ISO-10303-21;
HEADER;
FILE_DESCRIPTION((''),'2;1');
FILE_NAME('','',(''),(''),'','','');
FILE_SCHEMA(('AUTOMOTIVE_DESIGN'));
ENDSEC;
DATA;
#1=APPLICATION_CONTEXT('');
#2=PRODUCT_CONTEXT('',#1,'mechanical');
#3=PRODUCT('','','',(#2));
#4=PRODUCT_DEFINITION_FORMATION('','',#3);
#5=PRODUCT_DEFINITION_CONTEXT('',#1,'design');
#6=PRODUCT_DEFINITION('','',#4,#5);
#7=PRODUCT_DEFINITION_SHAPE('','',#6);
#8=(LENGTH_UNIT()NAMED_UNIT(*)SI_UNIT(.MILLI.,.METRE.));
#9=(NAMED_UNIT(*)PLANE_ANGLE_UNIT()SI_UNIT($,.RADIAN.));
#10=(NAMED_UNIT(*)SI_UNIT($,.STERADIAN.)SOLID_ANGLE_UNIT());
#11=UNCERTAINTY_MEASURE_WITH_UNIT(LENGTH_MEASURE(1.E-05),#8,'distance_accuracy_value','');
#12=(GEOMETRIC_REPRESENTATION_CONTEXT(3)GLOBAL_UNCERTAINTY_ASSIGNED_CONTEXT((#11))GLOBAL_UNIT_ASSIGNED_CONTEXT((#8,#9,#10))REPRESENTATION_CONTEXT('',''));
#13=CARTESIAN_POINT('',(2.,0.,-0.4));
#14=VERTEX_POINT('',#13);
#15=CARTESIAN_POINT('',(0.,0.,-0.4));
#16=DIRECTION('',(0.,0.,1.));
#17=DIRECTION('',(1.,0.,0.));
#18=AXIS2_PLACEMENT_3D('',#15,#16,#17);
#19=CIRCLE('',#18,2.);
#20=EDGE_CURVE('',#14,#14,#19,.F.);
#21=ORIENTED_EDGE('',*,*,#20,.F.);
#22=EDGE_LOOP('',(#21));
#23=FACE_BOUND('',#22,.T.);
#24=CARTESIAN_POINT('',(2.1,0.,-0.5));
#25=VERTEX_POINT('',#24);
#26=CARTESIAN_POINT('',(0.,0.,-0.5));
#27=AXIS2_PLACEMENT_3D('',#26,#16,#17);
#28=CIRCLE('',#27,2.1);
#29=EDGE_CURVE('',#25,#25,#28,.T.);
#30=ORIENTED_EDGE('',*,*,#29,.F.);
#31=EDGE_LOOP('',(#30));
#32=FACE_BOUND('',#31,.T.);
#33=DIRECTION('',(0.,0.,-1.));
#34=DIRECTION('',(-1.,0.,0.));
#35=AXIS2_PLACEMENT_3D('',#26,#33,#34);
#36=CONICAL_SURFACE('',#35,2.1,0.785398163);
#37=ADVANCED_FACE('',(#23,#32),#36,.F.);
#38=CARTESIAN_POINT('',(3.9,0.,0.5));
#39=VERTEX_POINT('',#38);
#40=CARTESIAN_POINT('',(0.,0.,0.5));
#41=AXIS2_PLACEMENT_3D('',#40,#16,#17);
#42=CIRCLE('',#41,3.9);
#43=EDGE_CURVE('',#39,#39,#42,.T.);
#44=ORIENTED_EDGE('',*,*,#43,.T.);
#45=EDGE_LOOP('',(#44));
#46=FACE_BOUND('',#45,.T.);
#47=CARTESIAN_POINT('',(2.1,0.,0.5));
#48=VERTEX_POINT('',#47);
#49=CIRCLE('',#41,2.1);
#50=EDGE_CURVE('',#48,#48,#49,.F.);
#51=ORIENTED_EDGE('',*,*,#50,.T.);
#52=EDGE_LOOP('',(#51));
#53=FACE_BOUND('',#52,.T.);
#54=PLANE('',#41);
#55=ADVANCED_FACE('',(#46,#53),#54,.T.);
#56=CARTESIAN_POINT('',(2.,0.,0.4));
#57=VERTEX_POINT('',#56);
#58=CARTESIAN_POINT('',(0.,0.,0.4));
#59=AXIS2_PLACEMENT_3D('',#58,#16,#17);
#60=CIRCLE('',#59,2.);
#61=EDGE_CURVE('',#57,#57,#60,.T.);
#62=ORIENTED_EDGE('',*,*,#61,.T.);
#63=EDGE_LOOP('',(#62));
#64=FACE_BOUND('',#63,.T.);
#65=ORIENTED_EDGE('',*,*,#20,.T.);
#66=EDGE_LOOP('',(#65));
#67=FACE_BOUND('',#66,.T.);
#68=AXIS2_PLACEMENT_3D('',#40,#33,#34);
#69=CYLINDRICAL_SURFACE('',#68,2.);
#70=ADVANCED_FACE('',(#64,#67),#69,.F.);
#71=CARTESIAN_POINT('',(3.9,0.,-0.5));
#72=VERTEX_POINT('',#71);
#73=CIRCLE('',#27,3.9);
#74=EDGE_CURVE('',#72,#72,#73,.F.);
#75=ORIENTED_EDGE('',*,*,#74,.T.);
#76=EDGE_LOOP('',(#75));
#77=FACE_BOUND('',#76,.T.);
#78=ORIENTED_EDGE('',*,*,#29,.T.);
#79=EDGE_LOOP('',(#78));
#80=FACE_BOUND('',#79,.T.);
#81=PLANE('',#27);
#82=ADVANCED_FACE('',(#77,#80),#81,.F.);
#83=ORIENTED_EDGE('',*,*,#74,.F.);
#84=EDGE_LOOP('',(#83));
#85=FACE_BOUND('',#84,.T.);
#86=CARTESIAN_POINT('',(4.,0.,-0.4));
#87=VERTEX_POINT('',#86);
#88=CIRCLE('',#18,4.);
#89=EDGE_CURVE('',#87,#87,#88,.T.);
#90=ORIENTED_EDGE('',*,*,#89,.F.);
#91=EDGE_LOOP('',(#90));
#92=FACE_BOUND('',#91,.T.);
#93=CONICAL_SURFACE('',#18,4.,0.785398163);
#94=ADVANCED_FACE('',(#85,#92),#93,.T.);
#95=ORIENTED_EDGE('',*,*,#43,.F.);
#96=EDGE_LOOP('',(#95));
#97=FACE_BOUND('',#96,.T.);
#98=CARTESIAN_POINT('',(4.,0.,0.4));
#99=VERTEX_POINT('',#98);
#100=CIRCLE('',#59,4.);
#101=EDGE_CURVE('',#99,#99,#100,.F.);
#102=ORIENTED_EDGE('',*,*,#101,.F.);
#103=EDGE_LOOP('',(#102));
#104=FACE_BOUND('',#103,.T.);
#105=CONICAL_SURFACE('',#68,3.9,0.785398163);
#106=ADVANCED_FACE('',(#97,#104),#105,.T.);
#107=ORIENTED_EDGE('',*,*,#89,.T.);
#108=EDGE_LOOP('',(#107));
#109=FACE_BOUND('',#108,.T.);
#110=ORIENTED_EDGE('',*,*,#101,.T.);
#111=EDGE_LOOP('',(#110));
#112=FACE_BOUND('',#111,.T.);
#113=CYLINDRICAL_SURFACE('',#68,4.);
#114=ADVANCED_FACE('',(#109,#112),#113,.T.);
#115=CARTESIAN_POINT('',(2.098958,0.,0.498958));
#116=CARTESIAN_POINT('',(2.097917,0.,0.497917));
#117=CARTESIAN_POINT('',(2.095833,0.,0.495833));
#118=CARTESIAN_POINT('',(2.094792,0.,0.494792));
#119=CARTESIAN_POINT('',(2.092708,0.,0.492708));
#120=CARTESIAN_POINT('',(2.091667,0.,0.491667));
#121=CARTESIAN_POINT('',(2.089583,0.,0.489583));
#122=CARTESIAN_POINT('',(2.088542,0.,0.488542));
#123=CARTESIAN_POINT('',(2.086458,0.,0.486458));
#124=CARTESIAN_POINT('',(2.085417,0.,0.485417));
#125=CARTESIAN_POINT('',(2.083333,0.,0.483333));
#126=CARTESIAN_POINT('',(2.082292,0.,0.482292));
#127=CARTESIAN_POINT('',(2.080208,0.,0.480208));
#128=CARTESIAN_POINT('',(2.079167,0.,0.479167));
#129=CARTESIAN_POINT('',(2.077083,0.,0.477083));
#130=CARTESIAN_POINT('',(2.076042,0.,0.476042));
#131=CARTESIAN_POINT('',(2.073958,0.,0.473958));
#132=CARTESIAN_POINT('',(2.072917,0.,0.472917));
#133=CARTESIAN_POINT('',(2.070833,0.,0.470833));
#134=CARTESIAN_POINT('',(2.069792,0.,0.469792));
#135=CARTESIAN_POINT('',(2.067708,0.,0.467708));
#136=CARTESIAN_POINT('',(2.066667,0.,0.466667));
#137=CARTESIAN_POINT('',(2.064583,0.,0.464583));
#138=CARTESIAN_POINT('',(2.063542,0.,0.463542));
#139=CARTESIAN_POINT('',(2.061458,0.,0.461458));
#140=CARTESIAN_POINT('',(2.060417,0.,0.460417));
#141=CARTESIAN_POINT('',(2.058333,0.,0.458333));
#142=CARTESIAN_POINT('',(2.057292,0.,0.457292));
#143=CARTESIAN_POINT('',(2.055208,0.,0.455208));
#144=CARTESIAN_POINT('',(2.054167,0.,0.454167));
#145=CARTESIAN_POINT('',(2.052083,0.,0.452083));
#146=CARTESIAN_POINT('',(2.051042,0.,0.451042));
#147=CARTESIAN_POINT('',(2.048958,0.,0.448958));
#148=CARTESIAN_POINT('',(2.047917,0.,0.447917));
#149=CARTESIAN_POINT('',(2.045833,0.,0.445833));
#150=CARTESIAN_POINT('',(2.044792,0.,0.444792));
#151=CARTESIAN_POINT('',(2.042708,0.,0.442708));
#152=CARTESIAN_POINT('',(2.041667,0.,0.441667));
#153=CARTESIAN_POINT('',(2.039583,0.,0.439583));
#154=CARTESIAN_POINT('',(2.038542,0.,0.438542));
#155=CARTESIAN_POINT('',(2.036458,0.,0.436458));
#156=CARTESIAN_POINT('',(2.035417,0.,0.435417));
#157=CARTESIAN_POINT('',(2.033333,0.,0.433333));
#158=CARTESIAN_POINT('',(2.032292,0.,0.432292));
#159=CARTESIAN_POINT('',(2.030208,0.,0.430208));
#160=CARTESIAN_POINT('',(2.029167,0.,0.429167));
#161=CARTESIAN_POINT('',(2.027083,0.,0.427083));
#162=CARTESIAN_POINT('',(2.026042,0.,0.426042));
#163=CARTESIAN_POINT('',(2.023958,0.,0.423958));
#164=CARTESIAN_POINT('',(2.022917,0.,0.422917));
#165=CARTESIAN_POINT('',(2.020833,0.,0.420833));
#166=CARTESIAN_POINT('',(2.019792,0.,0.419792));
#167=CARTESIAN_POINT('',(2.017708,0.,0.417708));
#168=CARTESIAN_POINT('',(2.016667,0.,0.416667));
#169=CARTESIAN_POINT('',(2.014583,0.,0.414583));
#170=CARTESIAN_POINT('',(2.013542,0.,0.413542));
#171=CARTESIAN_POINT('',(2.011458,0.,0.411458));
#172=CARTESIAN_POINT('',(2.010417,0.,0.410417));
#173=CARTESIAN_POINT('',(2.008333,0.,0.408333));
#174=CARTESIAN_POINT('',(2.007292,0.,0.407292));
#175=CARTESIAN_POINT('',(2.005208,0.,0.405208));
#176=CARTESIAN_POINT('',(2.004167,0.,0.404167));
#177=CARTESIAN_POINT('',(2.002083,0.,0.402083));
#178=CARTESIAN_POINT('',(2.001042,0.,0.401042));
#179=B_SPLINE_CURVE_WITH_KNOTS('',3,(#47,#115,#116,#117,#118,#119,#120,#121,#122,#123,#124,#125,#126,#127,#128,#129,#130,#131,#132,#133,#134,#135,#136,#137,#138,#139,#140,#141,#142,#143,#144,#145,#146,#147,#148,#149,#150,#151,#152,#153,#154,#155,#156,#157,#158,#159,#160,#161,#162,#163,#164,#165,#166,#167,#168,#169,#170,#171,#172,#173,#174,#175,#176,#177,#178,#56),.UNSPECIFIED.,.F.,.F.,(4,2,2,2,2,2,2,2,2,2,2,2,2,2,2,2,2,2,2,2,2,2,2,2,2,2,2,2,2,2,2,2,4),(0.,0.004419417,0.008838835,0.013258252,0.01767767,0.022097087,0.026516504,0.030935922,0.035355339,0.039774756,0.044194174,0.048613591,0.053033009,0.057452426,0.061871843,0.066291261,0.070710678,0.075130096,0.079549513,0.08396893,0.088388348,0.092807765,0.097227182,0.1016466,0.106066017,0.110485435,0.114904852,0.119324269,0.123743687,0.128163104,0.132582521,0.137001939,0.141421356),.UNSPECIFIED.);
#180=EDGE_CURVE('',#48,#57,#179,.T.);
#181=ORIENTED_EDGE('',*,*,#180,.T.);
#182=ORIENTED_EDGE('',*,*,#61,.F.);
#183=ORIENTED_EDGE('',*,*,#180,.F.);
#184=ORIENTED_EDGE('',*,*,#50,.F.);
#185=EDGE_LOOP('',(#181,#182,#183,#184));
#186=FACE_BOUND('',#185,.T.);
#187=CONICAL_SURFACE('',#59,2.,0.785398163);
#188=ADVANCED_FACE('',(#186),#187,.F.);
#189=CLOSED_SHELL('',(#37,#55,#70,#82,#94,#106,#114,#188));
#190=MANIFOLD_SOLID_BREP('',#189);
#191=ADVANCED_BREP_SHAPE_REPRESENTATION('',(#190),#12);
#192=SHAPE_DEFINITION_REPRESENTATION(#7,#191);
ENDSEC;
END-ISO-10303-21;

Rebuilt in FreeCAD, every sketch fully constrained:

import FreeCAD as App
import Part
import Sketcher

V = App.Vector


def edges_at(feature, points):
    """Names of the edges that pass closest to the given points."""
    edges = feature.Shape.Edges
    near = lambda p: min(range(len(edges)), key=lambda i: edges[i].distToShape(Part.Vertex(*p))[0])
    return sorted({f"Edge{near(p) + 1}" for p in points})

doc = App.newDocument("Part")
params = doc.addObject("Spreadsheet::Sheet", "Params")
for row, (alias, value) in enumerate([
    ("sketch1_diameter", "8 mm"),
    ("sketch1_diameter2", "4 mm"),
    ("pad1_length", "1 mm"),
    ("chamfer_size", "0.1 mm"),
], start=1):
    params.set(f"A{row}", alias)
    params.set(f"B{row}", "=" + value)
    params.setAlias(f"B{row}", alias)

body = doc.addObject("PartDesign::Body", "Body")

# Sketch on XY plane
sketch1 = body.newObject("Sketcher::SketchObject", "Sketch")
sketch1.AttachmentSupport = (doc.getObject("XY_Plane"), [""])
sketch1.MapMode = "FlatFace"
sketch1.addGeometry(Part.Circle(V(0, 0, 0), V(0, 0, 1), 4), False)
sketch1.addGeometry(Part.Circle(V(0, 0, 0), V(0, 0, 1), 2), False)
sketch1.addConstraint(Sketcher.Constraint("Coincident", 0, 3, -1, 1))
sketch1.addConstraint(Sketcher.Constraint("Coincident", 1, 3, -1, 1))
sketch1.addConstraint(Sketcher.Constraint("Diameter", 0, 8.0))
sketch1.addConstraint(Sketcher.Constraint("Diameter", 1, 4.0))
sketch1.setExpression("Constraints[2]", "Params.sketch1_diameter")
sketch1.setExpression("Constraints[3]", "Params.sketch1_diameter2")
pad1 = body.newObject("PartDesign::Pad", "Pad")
pad1.Profile = sketch1
pad1.setExpression("Length", "Params.pad1_length")
pad1.Midplane = True
doc.recompute()

chamfer = body.newObject("PartDesign::Chamfer", "Chamfer")
chamfer.Base = (pad1, edges_at(pad1, [
    (-4, 0, -0.5),
    (-4, 0, 0.5),
    (-2, 0, -0.5),
    (-2, 0, 0.5),
]))
chamfer.setExpression("Size", "Params.chamfer_size")

doc.recompute()
